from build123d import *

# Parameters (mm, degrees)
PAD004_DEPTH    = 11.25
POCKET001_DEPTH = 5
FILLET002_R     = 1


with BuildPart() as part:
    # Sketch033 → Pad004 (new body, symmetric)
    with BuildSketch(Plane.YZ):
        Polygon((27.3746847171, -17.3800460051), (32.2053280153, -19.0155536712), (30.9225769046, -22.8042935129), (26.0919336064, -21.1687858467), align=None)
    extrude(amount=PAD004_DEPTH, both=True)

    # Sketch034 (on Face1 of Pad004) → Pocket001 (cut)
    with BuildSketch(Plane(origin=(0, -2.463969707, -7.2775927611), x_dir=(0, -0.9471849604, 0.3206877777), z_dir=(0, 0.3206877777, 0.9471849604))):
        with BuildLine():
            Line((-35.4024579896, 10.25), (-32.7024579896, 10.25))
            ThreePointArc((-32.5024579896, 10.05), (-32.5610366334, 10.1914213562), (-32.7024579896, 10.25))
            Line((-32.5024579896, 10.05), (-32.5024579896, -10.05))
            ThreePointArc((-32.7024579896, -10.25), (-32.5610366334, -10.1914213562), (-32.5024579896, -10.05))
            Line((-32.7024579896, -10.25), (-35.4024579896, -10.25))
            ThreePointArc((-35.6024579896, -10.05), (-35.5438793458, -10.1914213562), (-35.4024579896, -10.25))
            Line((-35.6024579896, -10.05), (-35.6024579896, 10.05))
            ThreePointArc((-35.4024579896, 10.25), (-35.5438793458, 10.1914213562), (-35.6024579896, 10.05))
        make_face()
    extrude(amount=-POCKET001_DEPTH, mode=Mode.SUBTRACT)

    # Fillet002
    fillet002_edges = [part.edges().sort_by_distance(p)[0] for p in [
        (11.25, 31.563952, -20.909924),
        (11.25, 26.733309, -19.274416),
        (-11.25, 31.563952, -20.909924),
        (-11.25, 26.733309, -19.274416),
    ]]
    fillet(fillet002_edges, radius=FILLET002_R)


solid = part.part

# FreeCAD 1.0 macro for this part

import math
import FreeCAD as App
import Part
import Sketcher


def edges_at(feature, points):
    """Names of the edges that pass closest to the given points."""
    edges = feature.Shape.Edges
    near = lambda p: min(range(len(edges)), key=lambda i: edges[i].distToShape(Part.Vertex(*p))[0])
    return sorted({f"Edge{near(p) + 1}" for p in points})

doc = App.newDocument("Part")
body = doc.addObject("PartDesign::Body", "Body")

sketch1 = body.newObject("Sketcher::SketchObject", "Sketch")
sketch1.AttachmentSupport = (doc.getObject("YZ_Plane"), [""])
sketch1.MapMode = "FlatFace"
sketch1.addGeometry(Part.LineSegment(App.Vector(32.205328, -19.015554, 0), App.Vector(27.374685, -17.380046, 0)), False)
sketch1.addGeometry(Part.LineSegment(App.Vector(27.374685, -17.380046, 0), App.Vector(26.091934, -21.168786, 0)), False)
sketch1.addGeometry(Part.LineSegment(App.Vector(26.091934, -21.168786, 0), App.Vector(30.922577, -22.804294, 0)), False)
sketch1.addGeometry(Part.LineSegment(App.Vector(30.922577, -22.804294, 0), App.Vector(32.205328, -19.015554, 0)), False)
sketch1.addConstraint(Sketcher.Constraint("Coincident", 0, 2, 1, 1))
sketch1.addConstraint(Sketcher.Constraint("Coincident", 1, 2, 2, 1))
sketch1.addConstraint(Sketcher.Constraint("Coincident", 2, 2, 3, 1))
sketch1.addConstraint(Sketcher.Constraint("Coincident", 3, 2, 0, 1))
sketch1.addConstraint(Sketcher.Constraint("Perpendicular", 0, 1))
sketch1.addConstraint(Sketcher.Constraint("Perpendicular", 1, 2))
sketch1.addConstraint(Sketcher.Constraint("Perpendicular", 2, 3))
sketch1.addConstraint(Sketcher.Constraint("Distance", 1, 4.0))
sketch1.addConstraint(Sketcher.Constraint("Distance", 0, 5.1))
sketch1.addConstraint(Sketcher.Constraint("DistanceX", -1, 1, 3, 2, 32.205328))
sketch1.addConstraint(Sketcher.Constraint("DistanceX", 1, 2, 0, 2, 1.282751))
sketch1.addConstraint(Sketcher.Constraint("DistanceY", 0, 2, -1, 1, 17.380046))
pad1 = body.newObject("PartDesign::Pad", "Pad")
pad1.Profile = sketch1
pad1.Length = 22.5
pad1.Midplane = True

sketch2 = body.newObject("Sketcher::SketchObject", "Sketch001")
sketch2.Placement = App.Placement(App.Vector(0, -2.46397, -7.277593), App.Rotation(App.Vector(0, -0.94718496, 0.320687778), App.Vector(0.999999999, 0, 0), App.Vector(0, 0.320687778, 0.94718496), "ZXY"))
sketch2.addGeometry(Part.LineSegment(App.Vector(-32.702458, 10.25, 0), App.Vector(-35.402458, 10.25, 0)), False)
sketch2.addGeometry(Part.ArcOfCircle(Part.Circle(App.Vector(-35.402458, 10.05, 0), App.Vector(0, 0, 1), 0.2), math.radians(90), math.radians(180)), False)
sketch2.addGeometry(Part.LineSegment(App.Vector(-35.602458, 10.05, 0), App.Vector(-35.602458, -10.05, 0)), False)
sketch2.addGeometry(Part.ArcOfCircle(Part.Circle(App.Vector(-35.402458, -10.05, 0), App.Vector(0, 0, 1), 0.2), math.radians(180), math.radians(270)), False)
sketch2.addGeometry(Part.LineSegment(App.Vector(-35.402458, -10.25, 0), App.Vector(-32.702458, -10.25, 0)), False)
sketch2.addGeometry(Part.ArcOfCircle(Part.Circle(App.Vector(-32.702458, -10.05, 0), App.Vector(0, 0, 1), 0.2), math.radians(-90), math.radians(0)), False)
sketch2.addGeometry(Part.LineSegment(App.Vector(-32.502458, -10.05, 0), App.Vector(-32.502458, 10.05, 0)), False)
sketch2.addGeometry(Part.ArcOfCircle(Part.Circle(App.Vector(-32.702458, 10.05, 0), App.Vector(0, 0, 1), 0.2), math.radians(0), math.radians(90)), False)
sketch2.addConstraint(Sketcher.Constraint("Tangent", 0, 2, 1, 1))
sketch2.addConstraint(Sketcher.Constraint("Tangent", 1, 2, 2, 1))
sketch2.addConstraint(Sketcher.Constraint("Tangent", 2, 2, 3, 1))
sketch2.addConstraint(Sketcher.Constraint("Tangent", 3, 2, 4, 1))
sketch2.addConstraint(Sketcher.Constraint("Tangent", 4, 2, 5, 1))
sketch2.addConstraint(Sketcher.Constraint("Tangent", 5, 2, 6, 1))
sketch2.addConstraint(Sketcher.Constraint("Tangent", 6, 2, 7, 1))
sketch2.addConstraint(Sketcher.Constraint("Tangent", 7, 2, 0, 1))
sketch2.addConstraint(Sketcher.Constraint("Horizontal", 0))
sketch2.addConstraint(Sketcher.Constraint("Vertical", 2))
sketch2.addConstraint(Sketcher.Constraint("Horizontal", 4))
sketch2.addConstraint(Sketcher.Constraint("Vertical", 6))
sketch2.addConstraint(Sketcher.Constraint("Equal", 1, 3))
sketch2.addConstraint(Sketcher.Constraint("Equal", 3, 5))
sketch2.addConstraint(Sketcher.Constraint("Equal", 5, 7))
sketch2.addConstraint(Sketcher.Constraint("Radius", 1, 0.2))
sketch2.addConstraint(Sketcher.Constraint("DistanceX", 0, 2, 0, 1, 2.7))
sketch2.addConstraint(Sketcher.Constraint("DistanceY", 2, 2, 2, 1, 20.1))
sketch2.addConstraint(Sketcher.Constraint("DistanceY", -1, 1, 1, 3, 10.05))
sketch2.addConstraint(Sketcher.Constraint("DistanceX", 1, 3, -1, 1, 35.402458))
pocket1 = body.newObject("PartDesign::Pocket", "Pocket")
pocket1.Profile = sketch2
pocket1.Length = 5
doc.recompute()

fillet = body.newObject("PartDesign::Fillet", "Fillet")
fillet.Base = (pocket1, edges_at(pocket1, [
    (11.25, 31.564, -20.91),
    (11.25, 26.733, -19.274),
    (-11.25, 31.564, -20.91),
    (-11.25, 26.733, -19.274),
]))
fillet.Radius = 1

doc.recompute()
